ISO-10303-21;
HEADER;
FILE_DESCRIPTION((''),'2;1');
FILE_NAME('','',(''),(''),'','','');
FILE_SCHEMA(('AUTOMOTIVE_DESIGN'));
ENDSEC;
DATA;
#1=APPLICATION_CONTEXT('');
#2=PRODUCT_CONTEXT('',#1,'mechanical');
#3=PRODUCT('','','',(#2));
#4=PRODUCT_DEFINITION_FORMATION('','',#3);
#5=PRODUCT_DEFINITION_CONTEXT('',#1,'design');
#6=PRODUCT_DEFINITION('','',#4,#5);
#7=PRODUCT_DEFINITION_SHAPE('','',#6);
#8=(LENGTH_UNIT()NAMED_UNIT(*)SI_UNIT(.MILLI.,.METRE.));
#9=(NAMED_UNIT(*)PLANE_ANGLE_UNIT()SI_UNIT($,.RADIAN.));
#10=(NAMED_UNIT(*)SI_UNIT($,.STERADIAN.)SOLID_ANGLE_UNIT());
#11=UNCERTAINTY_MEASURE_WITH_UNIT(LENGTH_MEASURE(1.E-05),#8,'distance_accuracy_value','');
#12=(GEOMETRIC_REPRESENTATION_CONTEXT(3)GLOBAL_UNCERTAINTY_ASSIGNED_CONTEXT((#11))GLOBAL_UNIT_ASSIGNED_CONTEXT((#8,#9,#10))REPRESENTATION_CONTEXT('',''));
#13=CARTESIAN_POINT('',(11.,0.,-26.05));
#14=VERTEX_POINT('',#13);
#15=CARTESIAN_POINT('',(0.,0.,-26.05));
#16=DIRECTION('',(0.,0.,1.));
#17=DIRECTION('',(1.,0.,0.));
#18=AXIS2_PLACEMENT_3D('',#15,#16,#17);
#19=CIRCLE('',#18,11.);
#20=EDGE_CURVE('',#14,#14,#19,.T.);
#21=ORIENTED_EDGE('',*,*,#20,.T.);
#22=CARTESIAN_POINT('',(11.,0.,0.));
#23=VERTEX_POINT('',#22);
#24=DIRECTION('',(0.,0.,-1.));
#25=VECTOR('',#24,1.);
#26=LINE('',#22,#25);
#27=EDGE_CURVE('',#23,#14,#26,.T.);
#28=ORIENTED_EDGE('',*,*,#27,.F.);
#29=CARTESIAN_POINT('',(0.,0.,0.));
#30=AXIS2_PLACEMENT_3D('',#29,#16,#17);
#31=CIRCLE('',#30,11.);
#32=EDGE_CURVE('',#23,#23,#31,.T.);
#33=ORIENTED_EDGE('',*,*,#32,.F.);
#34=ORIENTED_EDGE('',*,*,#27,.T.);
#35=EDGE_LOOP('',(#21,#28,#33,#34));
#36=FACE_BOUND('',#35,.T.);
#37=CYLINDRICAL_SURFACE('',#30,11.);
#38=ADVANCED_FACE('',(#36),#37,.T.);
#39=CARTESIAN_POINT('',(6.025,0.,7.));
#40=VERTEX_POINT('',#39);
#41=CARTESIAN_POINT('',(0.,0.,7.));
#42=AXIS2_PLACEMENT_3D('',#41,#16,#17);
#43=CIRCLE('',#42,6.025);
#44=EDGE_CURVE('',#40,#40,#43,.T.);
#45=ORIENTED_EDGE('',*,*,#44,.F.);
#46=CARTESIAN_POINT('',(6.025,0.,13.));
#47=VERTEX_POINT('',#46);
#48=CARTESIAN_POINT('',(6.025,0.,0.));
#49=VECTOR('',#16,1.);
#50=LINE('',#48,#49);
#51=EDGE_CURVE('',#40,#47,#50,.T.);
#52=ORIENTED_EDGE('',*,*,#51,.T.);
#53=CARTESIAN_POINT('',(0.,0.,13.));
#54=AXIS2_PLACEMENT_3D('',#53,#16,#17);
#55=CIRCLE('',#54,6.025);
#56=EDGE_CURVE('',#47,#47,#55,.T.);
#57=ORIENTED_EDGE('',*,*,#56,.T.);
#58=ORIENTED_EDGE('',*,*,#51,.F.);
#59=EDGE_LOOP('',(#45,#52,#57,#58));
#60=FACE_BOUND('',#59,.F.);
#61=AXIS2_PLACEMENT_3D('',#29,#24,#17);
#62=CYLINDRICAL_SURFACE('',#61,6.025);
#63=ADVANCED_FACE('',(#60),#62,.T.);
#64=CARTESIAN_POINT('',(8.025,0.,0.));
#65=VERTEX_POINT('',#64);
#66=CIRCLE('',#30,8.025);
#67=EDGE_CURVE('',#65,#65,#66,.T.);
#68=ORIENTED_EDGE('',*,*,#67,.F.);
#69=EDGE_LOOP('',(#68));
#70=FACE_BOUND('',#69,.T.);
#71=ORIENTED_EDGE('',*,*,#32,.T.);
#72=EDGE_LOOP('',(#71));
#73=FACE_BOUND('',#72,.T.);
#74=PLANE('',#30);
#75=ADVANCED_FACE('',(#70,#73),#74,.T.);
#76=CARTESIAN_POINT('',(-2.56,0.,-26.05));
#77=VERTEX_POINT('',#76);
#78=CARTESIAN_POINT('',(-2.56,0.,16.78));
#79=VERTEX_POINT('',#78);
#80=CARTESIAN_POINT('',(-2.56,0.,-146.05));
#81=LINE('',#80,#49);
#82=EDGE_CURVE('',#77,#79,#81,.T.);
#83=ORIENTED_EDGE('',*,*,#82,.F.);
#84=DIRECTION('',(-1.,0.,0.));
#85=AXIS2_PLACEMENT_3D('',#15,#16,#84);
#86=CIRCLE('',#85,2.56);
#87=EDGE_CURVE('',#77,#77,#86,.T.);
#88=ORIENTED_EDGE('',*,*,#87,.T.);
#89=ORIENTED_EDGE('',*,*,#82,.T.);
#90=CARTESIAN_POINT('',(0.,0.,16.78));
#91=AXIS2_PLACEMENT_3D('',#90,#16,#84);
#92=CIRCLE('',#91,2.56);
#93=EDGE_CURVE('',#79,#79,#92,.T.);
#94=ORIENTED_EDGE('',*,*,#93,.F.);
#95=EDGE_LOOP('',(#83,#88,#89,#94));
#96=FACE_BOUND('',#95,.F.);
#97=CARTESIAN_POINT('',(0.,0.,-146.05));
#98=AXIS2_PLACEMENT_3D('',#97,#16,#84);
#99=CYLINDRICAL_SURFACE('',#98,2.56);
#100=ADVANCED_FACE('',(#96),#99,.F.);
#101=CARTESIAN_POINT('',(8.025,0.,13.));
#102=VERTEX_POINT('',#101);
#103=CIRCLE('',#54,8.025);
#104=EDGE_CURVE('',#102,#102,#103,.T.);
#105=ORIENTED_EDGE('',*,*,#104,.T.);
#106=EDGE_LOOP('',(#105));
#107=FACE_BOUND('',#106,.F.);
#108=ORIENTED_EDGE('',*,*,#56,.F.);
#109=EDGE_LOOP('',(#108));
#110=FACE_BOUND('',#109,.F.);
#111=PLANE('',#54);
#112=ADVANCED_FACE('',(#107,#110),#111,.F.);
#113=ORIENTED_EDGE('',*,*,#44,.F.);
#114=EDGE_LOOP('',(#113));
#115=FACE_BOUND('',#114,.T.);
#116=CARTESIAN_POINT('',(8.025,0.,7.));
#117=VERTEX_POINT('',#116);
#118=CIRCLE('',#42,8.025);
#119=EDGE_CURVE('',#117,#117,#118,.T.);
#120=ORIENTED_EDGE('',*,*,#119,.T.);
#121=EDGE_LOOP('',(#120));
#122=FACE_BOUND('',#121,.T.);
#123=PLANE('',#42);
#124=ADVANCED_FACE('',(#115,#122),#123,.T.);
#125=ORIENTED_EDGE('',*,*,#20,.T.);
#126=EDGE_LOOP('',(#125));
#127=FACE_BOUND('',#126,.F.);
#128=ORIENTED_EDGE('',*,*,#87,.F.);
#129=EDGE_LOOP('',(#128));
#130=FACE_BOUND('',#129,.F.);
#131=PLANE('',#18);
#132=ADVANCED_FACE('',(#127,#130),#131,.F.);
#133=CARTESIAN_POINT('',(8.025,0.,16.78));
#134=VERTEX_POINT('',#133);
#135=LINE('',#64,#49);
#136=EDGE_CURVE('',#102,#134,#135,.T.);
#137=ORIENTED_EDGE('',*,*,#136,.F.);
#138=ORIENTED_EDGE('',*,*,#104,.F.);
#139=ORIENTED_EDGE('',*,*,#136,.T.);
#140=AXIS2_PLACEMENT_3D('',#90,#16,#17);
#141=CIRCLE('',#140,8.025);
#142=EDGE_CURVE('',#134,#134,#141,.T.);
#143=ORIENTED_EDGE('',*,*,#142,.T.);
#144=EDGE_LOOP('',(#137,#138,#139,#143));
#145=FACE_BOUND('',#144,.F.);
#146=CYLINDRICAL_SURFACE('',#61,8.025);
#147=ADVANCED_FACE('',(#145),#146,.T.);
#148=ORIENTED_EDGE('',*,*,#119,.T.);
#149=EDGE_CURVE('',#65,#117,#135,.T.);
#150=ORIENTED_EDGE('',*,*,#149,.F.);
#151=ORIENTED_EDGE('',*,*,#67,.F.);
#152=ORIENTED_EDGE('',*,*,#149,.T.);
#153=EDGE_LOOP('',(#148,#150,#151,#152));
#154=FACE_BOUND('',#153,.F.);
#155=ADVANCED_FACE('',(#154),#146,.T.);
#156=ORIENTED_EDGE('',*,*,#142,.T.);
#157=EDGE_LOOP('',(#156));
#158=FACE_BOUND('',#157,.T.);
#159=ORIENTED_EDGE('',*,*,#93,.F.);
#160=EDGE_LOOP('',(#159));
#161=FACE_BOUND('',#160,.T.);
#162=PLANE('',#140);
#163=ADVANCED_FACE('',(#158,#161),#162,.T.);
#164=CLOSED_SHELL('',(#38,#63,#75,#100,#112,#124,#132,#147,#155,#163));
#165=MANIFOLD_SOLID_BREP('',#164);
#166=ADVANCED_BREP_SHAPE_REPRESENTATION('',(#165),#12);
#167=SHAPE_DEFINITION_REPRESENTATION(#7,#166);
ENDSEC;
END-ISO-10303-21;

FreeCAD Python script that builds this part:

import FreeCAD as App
import Part
import Sketcher

doc = App.newDocument("Part")
body = doc.addObject("PartDesign::Body", "Body")

sketch1 = body.newObject("Sketcher::SketchObject", "Sketch")
sketch1.AttachmentSupport = (doc.getObject("XY_Plane"), [""])
sketch1.MapMode = "FlatFace"
sketch1.addGeometry(Part.Circle(App.Vector(0, 0, 0), App.Vector(0, 0, 1), 11), False)
sketch1.addConstraint(Sketcher.Constraint("Coincident", 0, 3, -1, 1))
sketch1.addConstraint(Sketcher.Constraint("Diameter", 0, 22.0))
pad1 = body.newObject("PartDesign::Pad", "Pad")
pad1.Profile = sketch1
pad1.Length = 26.05
pad1.Reversed = True

sketch2 = body.newObject("Sketcher::SketchObject", "Sketch001")
sketch2.AttachmentSupport = (doc.getObject("XY_Plane"), [""])
sketch2.MapMode = "FlatFace"
sketch2.addGeometry(Part.Circle(App.Vector(0, 0, 0), App.Vector(0, 0, 1), 8.025), False)
sketch2.addConstraint(Sketcher.Constraint("Coincident", 0, 3, -1, 1))
sketch2.addConstraint(Sketcher.Constraint("Diameter", 0, 16.05))
pad2 = body.newObject("PartDesign::Pad", "Pad001")
pad2.Profile = sketch2
pad2.Length = 16.78

sketch3 = body.newObject("Sketcher::SketchObject", "Sketch002")
sketch3.AttachmentSupport = (doc.getObject("XY_Plane"), [""])
sketch3.MapMode = "FlatFace"
sketch3.addGeometry(Part.Circle(App.Vector(0, 0, 0), App.Vector(0, 0, 1), 8.025), False)
sketch3.addGeometry(Part.Circle(App.Vector(0, 0, 0), App.Vector(0, 0, 1), 6.025), False)
sketch3.addConstraint(Sketcher.Constraint("Coincident", 0, 3, -1, 1))
sketch3.addConstraint(Sketcher.Constraint("Coincident", 1, 3, -1, 1))
sketch3.addConstraint(Sketcher.Constraint("Diameter", 0, 16.05))
sketch3.addConstraint(Sketcher.Constraint("Diameter", 1, 12.05))
pocket1 = body.newObject("PartDesign::Pocket", "Pocket")
pocket1.Profile = sketch3
pocket1.Length = 13
pocket1.Reversed = True

sketch4 = body.newObject("Sketcher::SketchObject", "Sketch003")
sketch4.AttachmentSupport = (doc.getObject("XY_Plane"), [""])
sketch4.MapMode = "FlatFace"
sketch4.addGeometry(Part.Circle(App.Vector(0, 0, 0), App.Vector(0, 0, 1), 8.025), False)
sketch4.addGeometry(Part.Circle(App.Vector(0, 0, 0), App.Vector(0, 0, 1), 6.025), False)
sketch4.addConstraint(Sketcher.Constraint("Coincident", 0, 3, -1, 1))
sketch4.addConstraint(Sketcher.Constraint("Coincident", 1, 3, -1, 1))
sketch4.addConstraint(Sketcher.Constraint("Diameter", 0, 16.05))
sketch4.addConstraint(Sketcher.Constraint("Diameter", 1, 12.05))
pad3 = body.newObject("PartDesign::Pad", "Pad002")
pad3.Profile = sketch4
pad3.Length = 7

sketch5 = body.newObject("Sketcher::SketchObject", "Sketch004")
sketch5.AttachmentSupport = (doc.getObject("XY_Plane"), [""])
sketch5.MapMode = "FlatFace"
sketch5.AttachmentOffset = App.Placement(App.Vector(0, 0, -26.05), App.Rotation())
sketch5.addGeometry(Part.Circle(App.Vector(0, 0, 0), App.Vector(0, 0, 1), 2.56), False)
sketch5.addConstraint(Sketcher.Constraint("Coincident", 0, 3, -1, 1))
sketch5.addConstraint(Sketcher.Constraint("Diameter", 0, 5.12))
doc.recompute()
hole = body.newObject("PartDesign::Hole", "Hole")
hole.Profile = sketch5
hole.ThreadType = "None"
hole.Diameter = 5.12
hole.DepthType = "Dimension"
hole.Depth = 120
hole.DrillPoint = "Angled"
hole.DrillPointAngle = 118
hole.Reversed = True

doc.recompute()
